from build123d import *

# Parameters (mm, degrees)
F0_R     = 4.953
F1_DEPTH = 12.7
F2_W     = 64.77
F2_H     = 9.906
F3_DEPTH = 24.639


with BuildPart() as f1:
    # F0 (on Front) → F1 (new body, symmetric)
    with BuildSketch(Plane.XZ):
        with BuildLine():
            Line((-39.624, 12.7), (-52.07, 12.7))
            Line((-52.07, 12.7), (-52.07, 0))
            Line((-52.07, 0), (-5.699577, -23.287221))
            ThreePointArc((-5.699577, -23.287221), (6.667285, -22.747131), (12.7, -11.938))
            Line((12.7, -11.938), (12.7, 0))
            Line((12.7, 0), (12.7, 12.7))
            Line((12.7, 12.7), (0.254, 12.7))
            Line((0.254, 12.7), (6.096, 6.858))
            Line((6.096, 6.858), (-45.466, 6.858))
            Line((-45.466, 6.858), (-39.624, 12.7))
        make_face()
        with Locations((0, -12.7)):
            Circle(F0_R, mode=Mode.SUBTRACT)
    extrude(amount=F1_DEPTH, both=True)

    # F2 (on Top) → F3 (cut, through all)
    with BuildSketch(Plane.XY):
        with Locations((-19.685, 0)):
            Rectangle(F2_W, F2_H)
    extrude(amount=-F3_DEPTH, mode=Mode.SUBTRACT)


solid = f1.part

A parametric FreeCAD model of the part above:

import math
import FreeCAD as App
import Part
import Sketcher
from FreeCAD import Vector
Q = App.Units.Quantity


def add_polygon(sketch, points):
    """Adds a closed chain of lines whose ends are joined by coincident constraints."""
    first, n = sketch.GeometryCount, len(points)
    for a, b in zip(points, points[1:] + points[:1]):
        sketch.addGeometry(Part.LineSegment(App.Vector(*a, 0), App.Vector(*b, 0)), False)
    for i in range(n):
        sketch.addConstraint(Sketcher.Constraint("Coincident", first + i, 2, first + (i + 1) % n, 1))

doc = App.newDocument("Part")
body = doc.addObject("PartDesign::Body", "Body")

sketch1 = body.newObject("Sketcher::SketchObject", "Sketch")
sketch1.AttachmentSupport = (doc.getObject("XZ_Plane"), [""])
sketch1.MapMode = "FlatFace"
sketch1.addGeometry([
    Part.LineSegment(Vector(-39.6, 12.7, 0), Vector(-52.1, 12.7, 0)),
    Part.LineSegment(Vector(-52.1, 12.7, 0), Vector(-52.1, 0, 0)),
    Part.LineSegment(Vector(-52.1, 0, 0), Vector(-5.7, -23.3, 0)),
    Part.ArcOfCircle(Part.Circle(Vector(0, -11.9, 0), Vector(0, 0, 1), 12.7), math.radians(-117), math.radians(0)),
    Part.LineSegment(Vector(12.7, -11.9, 0), Vector(12.7, 12.7, 0)),
    Part.LineSegment(Vector(12.7, 12.7, 0), Vector(0.3, 12.7, 0)),
    Part.LineSegment(Vector(0.3, 12.7, 0), Vector(6.1, 6.9, 0)),
    Part.LineSegment(Vector(6.1, 6.9, 0), Vector(-45.5, 6.9, 0)),
    Part.LineSegment(Vector(-45.5, 6.9, 0), Vector(-39.6, 12.7, 0)),
    Part.Circle(Vector(0, -12.7, 0), Vector(0, 0, 1), 5),
], False)
sketch1.addConstraint([
    Sketcher.Constraint("Coincident", 0, 2, 1, 1),
    Sketcher.Constraint("Coincident", 1, 2, 2, 1),
    Sketcher.Constraint("Tangent", 2, 2, 3, 1),
    Sketcher.Constraint("Tangent", 3, 2, 4, 1),
    Sketcher.Constraint("Coincident", 4, 2, 5, 1),
    Sketcher.Constraint("Coincident", 5, 2, 6, 1),
    Sketcher.Constraint("Coincident", 6, 2, 7, 1),
    Sketcher.Constraint("Coincident", 7, 2, 8, 1),
    Sketcher.Constraint("Coincident", 8, 2, 0, 1),
    Sketcher.Constraint("Horizontal", 0),
    Sketcher.Constraint("Vertical", 1),
    Sketcher.Constraint("Vertical", 4),
    Sketcher.Constraint("Horizontal", 5),
    Sketcher.Constraint("Horizontal", 7),
    Sketcher.Constraint("PointOnObject", 3, 3, -2),
    Sketcher.Constraint("PointOnObject", 9, 3, -2),
    Sketcher.Constraint("PointOnObject", 1, 2, -1),
    Sketcher.Constraint("Perpendicular", 6, 8),
    Sketcher.Constraint("Horizontal", 0, 2, 4, 2),
    Sketcher.Constraint("Equal", 0, 5),
    Sketcher.Constraint("Equal", 6, 8),
    Sketcher.Constraint("Radius", 3, Q("0.5 in")),
    Sketcher.Constraint("Diameter", 9, Q("0.39 in")),
    Sketcher.Constraint("DistanceY", 1, 2, 1, 1, Q("0.5 in")),
    Sketcher.Constraint("DistanceY", 9, 3, 0, 2, Q("1 in")),
    Sketcher.Constraint("DistanceX", 0, 2, 0, 1, Q("0.49 in")),
    Sketcher.Constraint("DistanceX", 7, 2, 7, 1, Q("2.03 in")),
    Sketcher.Constraint("DistanceY", 4, 1, 4, 2, Q("0.97 in")),
    Sketcher.Constraint("DistanceX", 7, 2, 5, 2, Q("1.8 in")),
])
pad1 = body.newObject("PartDesign::Pad", "Pad")
pad1.Profile = sketch1
pad1.Length = Q("1 in")
pad1.Midplane = True

sketch2 = body.newObject("Sketcher::SketchObject", "Sketch001")
sketch2.AttachmentSupport = (doc.getObject("XY_Plane"), [""])
sketch2.MapMode = "FlatFace"
add_polygon(sketch2, [(-52, 5), (-52, -5), (13, -5), (13, 5)])
sketch2.addConstraint([
    Sketcher.Constraint("Vertical", 0),
    Sketcher.Constraint("Horizontal", 1),
    Sketcher.Constraint("Vertical", 2),
    Sketcher.Constraint("Horizontal", 3),
    Sketcher.Constraint("DistanceX", 1, 1, 1, 2, Q("2.55 in")),
    Sketcher.Constraint("DistanceY", 0, 2, 0, 1, Q("0.39 in")),
    Sketcher.Constraint("DistanceX", -1, 1, 1, 2, Q("0.5 in")),
    Sketcher.Constraint("DistanceY", 0, 2, -1, 1, Q("0.195 in")),
])
pocket1 = body.newObject("PartDesign::Pocket", "Pocket")
pocket1.Profile = sketch2
pocket1.Type = "ThroughAll"

doc.recompute()
